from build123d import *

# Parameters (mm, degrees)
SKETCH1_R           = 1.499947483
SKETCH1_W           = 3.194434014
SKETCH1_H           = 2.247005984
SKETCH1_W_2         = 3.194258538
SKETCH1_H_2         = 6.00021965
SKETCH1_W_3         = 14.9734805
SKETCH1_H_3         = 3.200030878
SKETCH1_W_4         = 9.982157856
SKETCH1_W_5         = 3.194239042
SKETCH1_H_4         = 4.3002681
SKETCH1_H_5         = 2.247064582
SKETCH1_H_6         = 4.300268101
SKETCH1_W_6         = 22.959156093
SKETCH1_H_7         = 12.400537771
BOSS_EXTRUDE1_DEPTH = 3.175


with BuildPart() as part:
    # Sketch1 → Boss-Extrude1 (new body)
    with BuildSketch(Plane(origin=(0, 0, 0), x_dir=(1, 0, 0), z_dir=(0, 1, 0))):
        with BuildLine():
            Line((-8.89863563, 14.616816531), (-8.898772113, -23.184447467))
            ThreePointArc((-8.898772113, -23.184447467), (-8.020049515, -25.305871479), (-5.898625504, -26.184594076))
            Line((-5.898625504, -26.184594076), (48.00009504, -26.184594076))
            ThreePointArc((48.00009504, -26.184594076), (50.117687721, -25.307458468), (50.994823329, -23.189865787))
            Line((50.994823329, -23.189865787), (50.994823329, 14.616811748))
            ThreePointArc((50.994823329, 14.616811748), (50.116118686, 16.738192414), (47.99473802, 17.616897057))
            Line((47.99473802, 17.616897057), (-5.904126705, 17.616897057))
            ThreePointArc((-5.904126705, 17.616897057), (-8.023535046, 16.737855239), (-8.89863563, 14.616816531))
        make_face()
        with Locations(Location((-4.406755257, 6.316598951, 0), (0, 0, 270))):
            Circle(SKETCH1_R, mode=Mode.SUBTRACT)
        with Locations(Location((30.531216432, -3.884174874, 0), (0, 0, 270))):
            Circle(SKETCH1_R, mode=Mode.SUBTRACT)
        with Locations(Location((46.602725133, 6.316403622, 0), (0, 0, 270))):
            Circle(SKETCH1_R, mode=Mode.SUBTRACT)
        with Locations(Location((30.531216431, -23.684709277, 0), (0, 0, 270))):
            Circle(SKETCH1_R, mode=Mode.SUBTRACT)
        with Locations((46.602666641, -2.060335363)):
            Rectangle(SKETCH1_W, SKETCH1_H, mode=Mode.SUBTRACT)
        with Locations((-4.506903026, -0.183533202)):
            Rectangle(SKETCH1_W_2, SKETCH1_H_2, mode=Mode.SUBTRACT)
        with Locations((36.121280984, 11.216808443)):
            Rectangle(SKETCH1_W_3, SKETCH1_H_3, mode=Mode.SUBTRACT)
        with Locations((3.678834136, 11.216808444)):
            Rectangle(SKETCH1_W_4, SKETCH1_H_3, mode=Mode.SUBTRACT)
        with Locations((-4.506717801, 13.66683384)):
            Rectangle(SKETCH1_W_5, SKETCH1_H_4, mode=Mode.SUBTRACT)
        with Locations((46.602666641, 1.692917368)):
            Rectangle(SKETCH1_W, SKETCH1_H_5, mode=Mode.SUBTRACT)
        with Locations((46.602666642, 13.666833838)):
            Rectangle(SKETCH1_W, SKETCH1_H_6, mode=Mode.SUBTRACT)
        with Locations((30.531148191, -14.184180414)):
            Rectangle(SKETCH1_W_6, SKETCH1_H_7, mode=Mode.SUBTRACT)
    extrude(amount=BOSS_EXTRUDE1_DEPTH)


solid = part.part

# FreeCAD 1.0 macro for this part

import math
import FreeCAD as App
import Part
import Sketcher

V = App.Vector
Q = App.Units.Quantity

doc = App.newDocument("Part")
body = doc.addObject("PartDesign::Body", "Body")

sketch1 = body.newObject("Sketcher::SketchObject", "Sketch")
sketch1.AttachmentSupport = (doc.getObject("XZ_Plane"), [""])
sketch1.MapMode = "FlatFace"
sketch1.addGeometry(Part.LineSegment(V(-8.898636, -14.616817, 0), V(-8.898772, 23.184447, 0)), False)
sketch1.addGeometry(Part.ArcOfCircle(Part.Circle(V(-5.898626, 23.184447, 0), V(0, 0, 1), 3.000147), math.radians(90), math.radians(180)), False)
sketch1.addGeometry(Part.LineSegment(V(-5.898626, 26.184594, 0), V(48.000095, 26.184594, 0)), False)
sketch1.addGeometry(Part.ArcOfCircle(Part.Circle(V(48.000095, 23.189866, 0), V(0, 0, 1), 2.994728), math.radians(0), math.radians(90)), False)
sketch1.addGeometry(Part.LineSegment(V(50.994823, 23.189866, 0), V(50.994823, -14.616812, 0)), False)
sketch1.addGeometry(Part.ArcOfCircle(Part.Circle(V(47.994738, -14.616812, 0), V(0, 0, 1), 3.000085), math.radians(-90), math.radians(0)), False)
sketch1.addGeometry(Part.LineSegment(V(47.994738, -17.616897, 0), V(-5.904127, -17.616897, 0)), False)
sketch1.addGeometry(Part.ArcOfCircle(Part.Circle(V(-5.904127, -14.622383, 0), V(0, 0, 1), 2.994514), math.radians(179.893494), math.radians(270)), False)
sketch1.addGeometry(Part.Circle(V(30.531216, 23.684709, 0), V(0, 0, 1), 1.499947), False)
sketch1.addGeometry(Part.LineSegment(V(42.010726, 20.384449, 0), V(19.05157, 20.384449, 0)), False)
sketch1.addGeometry(Part.LineSegment(V(19.05157, 20.384449, 0), V(19.05157, 7.983912, 0)), False)
sketch1.addGeometry(Part.LineSegment(V(19.05157, 7.983912, 0), V(42.010726, 7.983912, 0)), False)
sketch1.addGeometry(Part.LineSegment(V(42.010726, 7.983912, 0), V(42.010726, 20.384449, 0)), False)
sketch1.addGeometry(Part.LineSegment(V(-2.909774, 3.183643, 0), V(-6.104032, 3.183643, 0)), False)
sketch1.addGeometry(Part.LineSegment(V(-6.104032, 3.183643, 0), V(-6.104032, -2.816577, 0)), False)
sketch1.addGeometry(Part.LineSegment(V(-6.104032, -2.816577, 0), V(-2.909774, -2.816577, 0)), False)
sketch1.addGeometry(Part.LineSegment(V(-2.909774, -2.816577, 0), V(-2.909774, 3.183643, 0)), False)
sketch1.addGeometry(Part.Circle(V(-4.406755, -6.316599, 0), V(0, 0, 1), 1.499947), False)
sketch1.addGeometry(Part.LineSegment(V(-2.909598, -11.5167, 0), V(-6.103837, -11.5167, 0)), False)
sketch1.addGeometry(Part.LineSegment(V(-6.103837, -11.5167, 0), V(-6.103837, -15.816968, 0)), False)
sketch1.addGeometry(Part.LineSegment(V(-6.103837, -15.816968, 0), V(-2.909598, -15.816968, 0)), False)
sketch1.addGeometry(Part.LineSegment(V(-2.909598, -15.816968, 0), V(-2.909598, -11.5167, 0)), False)
sketch1.addGeometry(Part.LineSegment(V(8.669913, -9.616793, 0), V(-1.312245, -9.616793, 0)), False)
sketch1.addGeometry(Part.LineSegment(V(-1.312245, -9.616793, 0), V(-1.312245, -12.816824, 0)), False)
sketch1.addGeometry(Part.LineSegment(V(-1.312245, -12.816824, 0), V(8.669913, -12.816824, 0)), False)
sketch1.addGeometry(Part.LineSegment(V(8.669913, -12.816824, 0), V(8.669913, -9.616793, 0)), False)
sketch1.addGeometry(Part.Circle(V(30.531216, 3.884175, 0), V(0, 0, 1), 1.499947), False)
sketch1.addGeometry(Part.LineSegment(V(48.199884, 3.183838, 0), V(45.00545, 3.183838, 0)), False)
sketch1.addGeometry(Part.LineSegment(V(45.00545, 3.183838, 0), V(45.00545, 0.936832, 0)), False)
sketch1.addGeometry(Part.LineSegment(V(45.00545, 0.936832, 0), V(48.199884, 0.936832, 0)), False)
sketch1.addGeometry(Part.LineSegment(V(48.199884, 0.936832, 0), V(48.199884, 3.183838, 0)), False)
sketch1.addGeometry(Part.LineSegment(V(48.199884, -0.569385, 0), V(45.00545, -0.569385, 0)), False)
sketch1.addGeometry(Part.LineSegment(V(45.00545, -0.569385, 0), V(45.00545, -2.81645, 0)), False)
sketch1.addGeometry(Part.LineSegment(V(45.00545, -2.81645, 0), V(48.199884, -2.81645, 0)), False)
sketch1.addGeometry(Part.LineSegment(V(48.199884, -2.81645, 0), V(48.199884, -0.569385, 0)), False)
sketch1.addGeometry(Part.Circle(V(46.602725, -6.316404, 0), V(0, 0, 1), 1.499947), False)
sketch1.addGeometry(Part.LineSegment(V(43.608021, -9.616793, 0), V(28.634541, -9.616793, 0)), False)
sketch1.addGeometry(Part.LineSegment(V(28.634541, -9.616793, 0), V(28.634541, -12.816824, 0)), False)
sketch1.addGeometry(Part.LineSegment(V(28.634541, -12.816824, 0), V(43.608021, -12.816824, 0)), False)
sketch1.addGeometry(Part.LineSegment(V(43.608021, -12.816824, 0), V(43.608021, -9.616793, 0)), False)
sketch1.addGeometry(Part.LineSegment(V(48.199884, -11.5167, 0), V(45.00545, -11.5167, 0)), False)
sketch1.addGeometry(Part.LineSegment(V(45.00545, -11.5167, 0), V(45.00545, -15.816968, 0)), False)
sketch1.addGeometry(Part.LineSegment(V(45.00545, -15.816968, 0), V(48.199884, -15.816968, 0)), False)
sketch1.addGeometry(Part.LineSegment(V(48.199884, -15.816968, 0), V(48.199884, -11.5167, 0)), False)
sketch1.addConstraint(Sketcher.Constraint("Coincident", 0, 2, 1, 2))
sketch1.addConstraint(Sketcher.Constraint("Tangent", 1, 1, 2, 1))
sketch1.addConstraint(Sketcher.Constraint("Tangent", 2, 2, 3, 2))
sketch1.addConstraint(Sketcher.Constraint("Tangent", 3, 1, 4, 1))
sketch1.addConstraint(Sketcher.Constraint("Tangent", 4, 2, 5, 2))
sketch1.addConstraint(Sketcher.Constraint("Tangent", 5, 1, 6, 1))
sketch1.addConstraint(Sketcher.Constraint("Tangent", 6, 2, 7, 2))
sketch1.addConstraint(Sketcher.Constraint("Coincident", 7, 1, 0, 1))
sketch1.addConstraint(Sketcher.Constraint("Coincident", 9, 2, 10, 1))
sketch1.addConstraint(Sketcher.Constraint("Coincident", 10, 2, 11, 1))
sketch1.addConstraint(Sketcher.Constraint("Coincident", 11, 2, 12, 1))
sketch1.addConstraint(Sketcher.Constraint("Coincident", 12, 2, 9, 1))
sketch1.addConstraint(Sketcher.Constraint("Coincident", 13, 2, 14, 1))
sketch1.addConstraint(Sketcher.Constraint("Coincident", 14, 2, 15, 1))
sketch1.addConstraint(Sketcher.Constraint("Coincident", 15, 2, 16, 1))
sketch1.addConstraint(Sketcher.Constraint("Coincident", 16, 2, 13, 1))
sketch1.addConstraint(Sketcher.Constraint("Coincident", 18, 2, 19, 1))
sketch1.addConstraint(Sketcher.Constraint("Coincident", 19, 2, 20, 1))
sketch1.addConstraint(Sketcher.Constraint("Coincident", 20, 2, 21, 1))
sketch1.addConstraint(Sketcher.Constraint("Coincident", 21, 2, 18, 1))
sketch1.addConstraint(Sketcher.Constraint("Coincident", 22, 2, 23, 1))
sketch1.addConstraint(Sketcher.Constraint("Coincident", 23, 2, 24, 1))
sketch1.addConstraint(Sketcher.Constraint("Coincident", 24, 2, 25, 1))
sketch1.addConstraint(Sketcher.Constraint("Coincident", 25, 2, 22, 1))
sketch1.addConstraint(Sketcher.Constraint("Coincident", 27, 2, 28, 1))
sketch1.addConstraint(Sketcher.Constraint("Coincident", 28, 2, 29, 1))
sketch1.addConstraint(Sketcher.Constraint("Coincident", 29, 2, 30, 1))
sketch1.addConstraint(Sketcher.Constraint("Coincident", 30, 2, 27, 1))
sketch1.addConstraint(Sketcher.Constraint("Coincident", 31, 2, 32, 1))
sketch1.addConstraint(Sketcher.Constraint("Coincident", 32, 2, 33, 1))
sketch1.addConstraint(Sketcher.Constraint("Coincident", 33, 2, 34, 1))
sketch1.addConstraint(Sketcher.Constraint("Coincident", 34, 2, 31, 1))
sketch1.addConstraint(Sketcher.Constraint("Coincident", 36, 2, 37, 1))
sketch1.addConstraint(Sketcher.Constraint("Coincident", 37, 2, 38, 1))
sketch1.addConstraint(Sketcher.Constraint("Coincident", 38, 2, 39, 1))
sketch1.addConstraint(Sketcher.Constraint("Coincident", 39, 2, 36, 1))
sketch1.addConstraint(Sketcher.Constraint("Coincident", 40, 2, 41, 1))
sketch1.addConstraint(Sketcher.Constraint("Coincident", 41, 2, 42, 1))
sketch1.addConstraint(Sketcher.Constraint("Coincident", 42, 2, 43, 1))
sketch1.addConstraint(Sketcher.Constraint("Coincident", 43, 2, 40, 1))
sketch1.addConstraint(Sketcher.Constraint("Horizontal", 2))
sketch1.addConstraint(Sketcher.Constraint("Vertical", 4))
sketch1.addConstraint(Sketcher.Constraint("Horizontal", 6))
sketch1.addConstraint(Sketcher.Constraint("Horizontal", 9))
sketch1.addConstraint(Sketcher.Constraint("Vertical", 10))
sketch1.addConstraint(Sketcher.Constraint("Horizontal", 11))
sketch1.addConstraint(Sketcher.Constraint("Vertical", 12))
sketch1.addConstraint(Sketcher.Constraint("Horizontal", 13))
sketch1.addConstraint(Sketcher.Constraint("Vertical", 14))
sketch1.addConstraint(Sketcher.Constraint("Horizontal", 15))
sketch1.addConstraint(Sketcher.Constraint("Vertical", 16))
sketch1.addConstraint(Sketcher.Constraint("Horizontal", 18))
sketch1.addConstraint(Sketcher.Constraint("Vertical", 19))
sketch1.addConstraint(Sketcher.Constraint("Horizontal", 20))
sketch1.addConstraint(Sketcher.Constraint("Vertical", 21))
sketch1.addConstraint(Sketcher.Constraint("Horizontal", 22))
sketch1.addConstraint(Sketcher.Constraint("Vertical", 23))
sketch1.addConstraint(Sketcher.Constraint("Horizontal", 24))
sketch1.addConstraint(Sketcher.Constraint("Vertical", 25))
sketch1.addConstraint(Sketcher.Constraint("Horizontal", 27))
sketch1.addConstraint(Sketcher.Constraint("Vertical", 28))
sketch1.addConstraint(Sketcher.Constraint("Horizontal", 29))
sketch1.addConstraint(Sketcher.Constraint("Vertical", 30))
sketch1.addConstraint(Sketcher.Constraint("Horizontal", 31))
sketch1.addConstraint(Sketcher.Constraint("Vertical", 32))
sketch1.addConstraint(Sketcher.Constraint("Horizontal", 33))
sketch1.addConstraint(Sketcher.Constraint("Vertical", 34))
sketch1.addConstraint(Sketcher.Constraint("Horizontal", 36))
sketch1.addConstraint(Sketcher.Constraint("Vertical", 37))
sketch1.addConstraint(Sketcher.Constraint("Horizontal", 38))
sketch1.addConstraint(Sketcher.Constraint("Vertical", 39))
sketch1.addConstraint(Sketcher.Constraint("Horizontal", 40))
sketch1.addConstraint(Sketcher.Constraint("Vertical", 41))
sketch1.addConstraint(Sketcher.Constraint("Horizontal", 42))
sketch1.addConstraint(Sketcher.Constraint("Vertical", 43))
sketch1.addConstraint(Sketcher.Constraint("Equal", 8, 17))
sketch1.addConstraint(Sketcher.Constraint("Equal", 17, 26))
sketch1.addConstraint(Sketcher.Constraint("Equal", 26, 35))
sketch1.addConstraint(Sketcher.Constraint("Horizontal", 1, 3, 0, 2))
sketch1.addConstraint(Sketcher.Constraint("Horizontal", 25, 2, 36, 2))
sketch1.addConstraint(Sketcher.Constraint("Horizontal", 24, 2, 37, 2))
sketch1.addConstraint(Sketcher.Constraint("Horizontal", 21, 2, 40, 2))
sketch1.addConstraint(Sketcher.Constraint("Horizontal", 20, 2, 41, 2))
sketch1.addConstraint(Sketcher.Constraint("Vertical", 8, 3, 26, 3))
sketch1.addConstraint(Sketcher.Constraint("Vertical", 28, 2, 31, 2))
sketch1.addConstraint(Sketcher.Constraint("Vertical", 30, 2, 33, 2))
sketch1.addConstraint(Sketcher.Constraint("Vertical", 32, 2, 40, 2))
sketch1.addConstraint(Sketcher.Constraint("Vertical", 34, 2, 42, 2))
sketch1.addConstraint(Sketcher.Constraint("Radius", 3, Q("2.994728 mm")))
sketch1.addConstraint(Sketcher.Constraint("Diameter", 8, Q("2.999895 mm")))
sketch1.addConstraint(Sketcher.Constraint("Radius", 1, Q("3.000147 mm")))
sketch1.addConstraint(Sketcher.Constraint("Radius", 5, Q("3.000085 mm")))
sketch1.addConstraint(Sketcher.Constraint("Radius", 7, Q("2.994514 mm")))
sketch1.addConstraint(Sketcher.Constraint("DistanceY", 31, 2, 28, 2, Q("0.0592999 in")))
sketch1.addConstraint(Sketcher.Constraint("DistanceX", 2, 1, 2, 2, Q("53.898721 mm")))
sketch1.addConstraint(Sketcher.Constraint("DistanceX", 13, 2, 13, 1, Q("3.194259 mm")))
sketch1.addConstraint(Sketcher.Constraint("DistanceX", 18, 2, 18, 1, Q("3.194239 mm")))
sketch1.addConstraint(Sketcher.Constraint("DistanceX", 36, 2, 36, 1, Q("14.97348 mm")))
sketch1.addConstraint(Sketcher.Constraint("DistanceY", 14, 2, 14, 1, Q("6.00022 mm")))
sketch1.addConstraint(Sketcher.Constraint("DistanceY", 19, 2, 19, 1, Q("4.300268 mm")))
sketch1.addConstraint(Sketcher.Constraint("DistanceY", 23, 2, 23, 1, Q("3.200031 mm")))
sketch1.addConstraint(Sketcher.Constraint("DistanceY", 17, 3, -1, 1, Q("6.316599 mm")))
sketch1.addConstraint(Sketcher.Constraint("DistanceY", 18, 2, -1, 1, Q("11.5167 mm")))
sketch1.addConstraint(Sketcher.Constraint("DistanceX", 20, 2, -1, 1, Q("2.909598 mm")))
sketch1.addConstraint(Sketcher.Constraint("DistanceX", 7, 3, 1, 3, Q("0.005501 mm")))
sketch1.addConstraint(Sketcher.Constraint("DistanceX", 35, 3, 3, 1, Q("4.392098 mm")))
sketch1.addConstraint(Sketcher.Constraint("DistanceY", 6, 2, 17, 3, Q("11.300298 mm")))
sketch1.addConstraint(Sketcher.Constraint("DistanceY", 9, 2, 1, 3, Q("2.799998 mm")))
sketch1.addConstraint(Sketcher.Constraint("DistanceX", 11, 2, 35, 3, Q("4.591999 mm")))
sketch1.addConstraint(Sketcher.Constraint("DistanceX", 7, 1, 18, 2, Q("2.794798 mm")))
sketch1.addConstraint(Sketcher.Constraint("DistanceY", 37, 2, 26, 3, Q("16.700999 mm")))
sketch1.addConstraint(Sketcher.Constraint("DistanceX", 9, 2, 9, 1, Q("22.959156 mm")))
sketch1.addConstraint(Sketcher.Constraint("DistanceX", 22, 2, 22, 1, Q("9.982158 mm")))
sketch1.addConstraint(Sketcher.Constraint("DistanceX", 27, 2, 27, 1, Q("3.194434 mm")))
sketch1.addConstraint(Sketcher.Constraint("DistanceY", 4, 2, 4, 1, Q("37.806678 mm")))
sketch1.addConstraint(Sketcher.Constraint("DistanceY", 10, 2, 10, 1, Q("12.400538 mm")))
sketch1.addConstraint(Sketcher.Constraint("DistanceY", 28, 2, 28, 1, Q("2.247006 mm")))
sketch1.addConstraint(Sketcher.Constraint("DistanceY", 32, 2, 32, 1, Q("2.247065 mm")))
sketch1.addConstraint(Sketcher.Constraint("DistanceY", -1, 1, 8, 3, Q("23.684709 mm")))
sketch1.addConstraint(Sketcher.Constraint("DistanceX", -1, 1, 27, 2, Q("45.00545 mm")))
sketch1.addConstraint(Sketcher.Constraint("DistanceY", -1, 1, 27, 2, Q("3.183838 mm")))
sketch1.addConstraint(Sketcher.Constraint("DistanceX", -1, 1, 36, 2, Q("28.634541 mm")))
sketch1.addConstraint(Sketcher.Constraint("DistanceX", 8, 3, 3, 3, Q("17.468879 mm")))
sketch1.addConstraint(Sketcher.Constraint("DistanceX", 7, 3, 17, 3, Q("1.497371 mm")))
sketch1.addConstraint(Sketcher.Constraint("DistanceY", 26, 3, 3, 3, Q("19.305691 mm")))
sketch1.addConstraint(Sketcher.Constraint("DistanceY", 5, 3, 35, 3, Q("8.300408 mm")))
sketch1.addConstraint(Sketcher.Constraint("DistanceY", 6, 2, 7, 1, Q("3.000081 mm")))
sketch1.addConstraint(Sketcher.Constraint("DistanceY", 17, 3, 13, 2, Q("9.500242 mm")))
sketch1.addConstraint(Sketcher.Constraint("DistanceX", 0, 2, 13, 2, Q("2.79474 mm")))
sketch1.addConstraint(Sketcher.Constraint("DistanceX", 17, 3, 22, 2, Q("3.09451 mm")))
pad1 = body.newObject("PartDesign::Pad", "Pad")
pad1.Profile = sketch1
pad1.Length = Q("0.125 in")
pad1.Reversed = True

doc.recompute()
